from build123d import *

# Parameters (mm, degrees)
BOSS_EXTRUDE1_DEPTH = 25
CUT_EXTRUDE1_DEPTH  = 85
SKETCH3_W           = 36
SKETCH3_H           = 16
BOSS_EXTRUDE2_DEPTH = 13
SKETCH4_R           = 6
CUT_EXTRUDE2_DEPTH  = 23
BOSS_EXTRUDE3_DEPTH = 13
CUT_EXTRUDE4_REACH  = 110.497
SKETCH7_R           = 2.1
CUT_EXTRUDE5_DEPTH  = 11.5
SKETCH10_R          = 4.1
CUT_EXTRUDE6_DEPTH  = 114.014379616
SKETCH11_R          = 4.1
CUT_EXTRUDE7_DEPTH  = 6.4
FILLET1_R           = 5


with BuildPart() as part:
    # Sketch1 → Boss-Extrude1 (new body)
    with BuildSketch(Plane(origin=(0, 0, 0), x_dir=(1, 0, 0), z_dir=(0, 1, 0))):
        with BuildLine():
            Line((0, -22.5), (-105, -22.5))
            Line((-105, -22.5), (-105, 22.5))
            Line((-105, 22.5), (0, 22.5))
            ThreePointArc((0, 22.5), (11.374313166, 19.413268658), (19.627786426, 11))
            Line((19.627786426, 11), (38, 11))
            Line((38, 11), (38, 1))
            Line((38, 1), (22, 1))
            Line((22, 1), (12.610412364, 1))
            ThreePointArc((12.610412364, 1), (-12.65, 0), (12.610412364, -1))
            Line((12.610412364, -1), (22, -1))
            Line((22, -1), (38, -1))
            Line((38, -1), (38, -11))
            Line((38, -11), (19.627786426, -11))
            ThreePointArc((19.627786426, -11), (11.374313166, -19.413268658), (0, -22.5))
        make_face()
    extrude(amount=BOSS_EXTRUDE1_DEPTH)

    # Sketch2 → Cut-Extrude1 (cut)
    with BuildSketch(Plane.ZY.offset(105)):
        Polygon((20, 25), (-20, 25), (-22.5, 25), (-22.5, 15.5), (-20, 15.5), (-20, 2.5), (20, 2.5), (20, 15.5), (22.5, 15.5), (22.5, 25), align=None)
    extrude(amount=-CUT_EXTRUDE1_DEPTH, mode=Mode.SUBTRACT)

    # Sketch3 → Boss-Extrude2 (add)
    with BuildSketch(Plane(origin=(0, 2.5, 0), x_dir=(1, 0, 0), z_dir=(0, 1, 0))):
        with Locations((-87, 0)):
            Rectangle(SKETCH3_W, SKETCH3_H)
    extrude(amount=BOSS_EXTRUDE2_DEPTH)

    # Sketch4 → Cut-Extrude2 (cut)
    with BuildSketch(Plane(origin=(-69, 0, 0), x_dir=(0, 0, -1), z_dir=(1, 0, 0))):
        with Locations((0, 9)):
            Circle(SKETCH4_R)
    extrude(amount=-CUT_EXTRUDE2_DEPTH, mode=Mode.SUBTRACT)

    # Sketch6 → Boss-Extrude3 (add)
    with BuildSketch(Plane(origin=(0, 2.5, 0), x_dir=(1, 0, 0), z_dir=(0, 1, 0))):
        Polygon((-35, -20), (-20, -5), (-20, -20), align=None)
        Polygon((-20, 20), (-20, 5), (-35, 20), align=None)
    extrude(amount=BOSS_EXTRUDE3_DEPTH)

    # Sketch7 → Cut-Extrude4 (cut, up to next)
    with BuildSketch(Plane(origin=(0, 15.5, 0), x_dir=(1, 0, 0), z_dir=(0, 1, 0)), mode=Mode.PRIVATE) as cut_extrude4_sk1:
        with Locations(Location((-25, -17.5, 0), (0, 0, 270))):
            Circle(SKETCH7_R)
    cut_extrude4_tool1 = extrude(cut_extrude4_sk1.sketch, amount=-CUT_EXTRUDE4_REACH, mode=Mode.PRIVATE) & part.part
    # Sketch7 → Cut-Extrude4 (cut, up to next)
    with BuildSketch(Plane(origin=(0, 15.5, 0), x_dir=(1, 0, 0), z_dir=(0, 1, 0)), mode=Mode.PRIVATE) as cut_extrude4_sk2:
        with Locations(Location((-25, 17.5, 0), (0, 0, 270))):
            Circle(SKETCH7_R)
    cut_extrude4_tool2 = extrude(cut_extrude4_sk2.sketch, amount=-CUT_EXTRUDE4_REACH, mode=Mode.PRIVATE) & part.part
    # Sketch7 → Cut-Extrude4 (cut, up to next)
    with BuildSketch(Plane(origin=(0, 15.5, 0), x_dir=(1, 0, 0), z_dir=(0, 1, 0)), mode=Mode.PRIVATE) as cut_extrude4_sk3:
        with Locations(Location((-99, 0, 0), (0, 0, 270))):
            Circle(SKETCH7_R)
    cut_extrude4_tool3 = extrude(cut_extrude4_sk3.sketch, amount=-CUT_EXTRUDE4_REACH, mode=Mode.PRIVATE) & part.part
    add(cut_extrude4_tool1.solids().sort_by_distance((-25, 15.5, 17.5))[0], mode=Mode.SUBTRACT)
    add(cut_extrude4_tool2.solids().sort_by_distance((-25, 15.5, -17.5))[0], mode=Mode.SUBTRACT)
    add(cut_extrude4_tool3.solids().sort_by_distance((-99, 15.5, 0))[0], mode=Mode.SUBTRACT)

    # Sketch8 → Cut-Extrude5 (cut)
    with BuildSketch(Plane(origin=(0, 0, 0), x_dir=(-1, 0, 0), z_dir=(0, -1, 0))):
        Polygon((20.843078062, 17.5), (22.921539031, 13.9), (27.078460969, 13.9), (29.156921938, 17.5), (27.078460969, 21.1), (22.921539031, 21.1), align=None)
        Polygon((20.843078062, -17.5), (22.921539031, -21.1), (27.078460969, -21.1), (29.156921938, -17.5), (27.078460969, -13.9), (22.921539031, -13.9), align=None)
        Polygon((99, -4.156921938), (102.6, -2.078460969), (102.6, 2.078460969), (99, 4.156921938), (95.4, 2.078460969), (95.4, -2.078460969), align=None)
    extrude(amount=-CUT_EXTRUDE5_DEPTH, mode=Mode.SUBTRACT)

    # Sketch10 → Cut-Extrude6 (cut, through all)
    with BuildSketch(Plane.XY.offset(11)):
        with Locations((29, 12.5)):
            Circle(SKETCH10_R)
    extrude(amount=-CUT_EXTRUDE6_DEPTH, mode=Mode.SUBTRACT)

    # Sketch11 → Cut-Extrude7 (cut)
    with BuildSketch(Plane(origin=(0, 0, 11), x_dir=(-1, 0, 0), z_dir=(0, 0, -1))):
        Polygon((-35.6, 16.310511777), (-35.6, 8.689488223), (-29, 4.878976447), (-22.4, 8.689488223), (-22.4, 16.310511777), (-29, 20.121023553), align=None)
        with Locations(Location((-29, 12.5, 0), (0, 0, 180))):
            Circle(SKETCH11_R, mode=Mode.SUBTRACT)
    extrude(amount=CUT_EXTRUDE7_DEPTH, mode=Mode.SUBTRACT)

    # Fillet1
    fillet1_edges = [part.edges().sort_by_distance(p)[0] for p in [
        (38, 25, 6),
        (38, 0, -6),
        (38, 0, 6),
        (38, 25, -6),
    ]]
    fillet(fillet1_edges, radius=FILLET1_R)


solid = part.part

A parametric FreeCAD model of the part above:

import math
import FreeCAD as App
import Part
import Sketcher
from FreeCAD import Vector
Q = App.Units.Quantity


def edges_at(feature, points):
    """Names of the edges that pass closest to the given points."""
    edges = feature.Shape.Edges
    near = lambda p: min(range(len(edges)), key=lambda i: edges[i].distToShape(Part.Vertex(*p))[0])
    return sorted({f"Edge{near(p) + 1}" for p in points})

doc = App.newDocument("Part")
body = doc.addObject("PartDesign::Body", "Body")

# Sketch on XZ plane
sketch1 = body.newObject("Sketcher::SketchObject", "Sketch")
sketch1.AttachmentSupport = (doc.getObject("XZ_Plane"), [""])
sketch1.MapMode = "FlatFace"
sketch1.addGeometry([
    Part.LineSegment(Vector(-105, 22.5, 0), Vector(0, 22.5, 0)),  # 0
    Part.ArcOfCircle(Part.Circle(Vector(0, 0, 0), Vector(0, 0, 1), 22.5), math.radians(29.267578), math.radians(90)),  # 1
    Part.LineSegment(Vector(19.627786, 11, 0), Vector(38, 11, 0)),  # 2
    Part.LineSegment(Vector(38, 11, 0), Vector(38, 1, 0)),  # 3
    Part.LineSegment(Vector(38, 1, 0), Vector(12.610412, 1, 0)),  # 4
    Part.ArcOfCircle(Part.Circle(Vector(0, 0, 0), Vector(0, 0, 1), 12.65), math.radians(4.534041), math.radians(355.465959)),  # 5
    Part.LineSegment(Vector(12.610412, -1, 0), Vector(38, -1, 0)),  # 6
    Part.LineSegment(Vector(38, -1, 0), Vector(38, -11, 0)),  # 7
    Part.LineSegment(Vector(38, -11, 0), Vector(19.627786, -11, 0)),  # 8
    Part.ArcOfCircle(Part.Circle(Vector(0, 0, 0), Vector(0, 0, 1), 22.5), math.radians(-90), math.radians(-29.267578)),  # 9
    Part.LineSegment(Vector(0, -22.5, 0), Vector(-105, -22.5, 0)),  # 10
    Part.LineSegment(Vector(-105, -22.5, 0), Vector(-105, 22.5, 0)),  # 11
], False)
sketch1.addConstraint([
    Sketcher.Constraint("Tangent", 0, 2, 1, 2),
    Sketcher.Constraint("Coincident", 1, 1, 2, 1),
    Sketcher.Constraint("Coincident", 2, 2, 3, 1),
    Sketcher.Constraint("Coincident", 3, 2, 4, 1),
    Sketcher.Constraint("Coincident", 4, 2, 5, 1),
    Sketcher.Constraint("Coincident", 5, 2, 6, 1),
    Sketcher.Constraint("Coincident", 6, 2, 7, 1),
    Sketcher.Constraint("Coincident", 7, 2, 8, 1),
    Sketcher.Constraint("Coincident", 8, 2, 9, 2),
    Sketcher.Constraint("Tangent", 9, 1, 10, 1),
    Sketcher.Constraint("Coincident", 10, 2, 11, 1),
    Sketcher.Constraint("Coincident", 11, 2, 0, 1),
    Sketcher.Constraint("Horizontal", 0),
    Sketcher.Constraint("Horizontal", 2),
    Sketcher.Constraint("Vertical", 3),
    Sketcher.Constraint("Horizontal", 4),
    Sketcher.Constraint("Horizontal", 6),
    Sketcher.Constraint("Vertical", 7),
    Sketcher.Constraint("Horizontal", 8),
    Sketcher.Constraint("Horizontal", 10),
    Sketcher.Constraint("Vertical", 11),
    Sketcher.Constraint("Coincident", 1, 3, -1, 1),
    Sketcher.Constraint("Coincident", 5, 3, -1, 1),
    Sketcher.Constraint("Coincident", 9, 3, -1, 1),
    Sketcher.Constraint("Equal", 1, 9),
    Sketcher.Constraint("Symmetric", 3, 2, 6, 2, -1),
    Sketcher.Constraint("Vertical", 1, 1, 8, 2),
    Sketcher.Constraint("Radius", 1, 22.5),
    Sketcher.Constraint("DistanceX", 0, 1, 0, 2, 105.0),
    Sketcher.Constraint("DistanceY", 3, 2, 3, 1, 10.0),
    Sketcher.Constraint("Radius", 5, 12.65),
    Sketcher.Constraint("DistanceY", -1, 1, 1, 1, 11.0),
    Sketcher.Constraint("DistanceX", -1, 1, 2, 2, 38.0),
])
pad1 = body.newObject("PartDesign::Pad", "Pad")
pad1.Profile = sketch1
pad1.Length = 25
pad1.Reversed = True

# Sketch on YZ plane
sketch2 = body.newObject("Sketcher::SketchObject", "Sketch001")
sketch2.AttachmentSupport = (doc.getObject("YZ_Plane"), [""])
sketch2.MapMode = "FlatFace"
sketch2.AttachmentOffset = App.Placement(Vector(0, 0, -105), App.Rotation())
sketch2.addGeometry([
    Part.LineSegment(Vector(25, -22.5, 0), Vector(15.5, -22.5, 0)),  # 0
    Part.LineSegment(Vector(15.5, -22.5, 0), Vector(15.5, -20, 0)),  # 1
    Part.LineSegment(Vector(15.5, -20, 0), Vector(2.5, -20, 0)),  # 2
    Part.LineSegment(Vector(2.5, -20, 0), Vector(2.5, 20, 0)),  # 3
    Part.LineSegment(Vector(2.5, 20, 0), Vector(15.5, 20, 0)),  # 4
    Part.LineSegment(Vector(15.5, 20, 0), Vector(15.5, 22.5, 0)),  # 5
    Part.LineSegment(Vector(15.5, 22.5, 0), Vector(25, 22.5, 0)),  # 6
    Part.LineSegment(Vector(25, 22.5, 0), Vector(25, -22.5, 0)),  # 7
], False)
sketch2.addConstraint([
    Sketcher.Constraint("Coincident", 0, 2, 1, 1),
    Sketcher.Constraint("Coincident", 1, 2, 2, 1),
    Sketcher.Constraint("Coincident", 2, 2, 3, 1),
    Sketcher.Constraint("Coincident", 3, 2, 4, 1),
    Sketcher.Constraint("Coincident", 4, 2, 5, 1),
    Sketcher.Constraint("Coincident", 5, 2, 6, 1),
    Sketcher.Constraint("Coincident", 6, 2, 7, 1),
    Sketcher.Constraint("Coincident", 7, 2, 0, 1),
    Sketcher.Constraint("Horizontal", 0),
    Sketcher.Constraint("Vertical", 1),
    Sketcher.Constraint("Horizontal", 2),
    Sketcher.Constraint("Vertical", 3),
    Sketcher.Constraint("Horizontal", 4),
    Sketcher.Constraint("Vertical", 5),
    Sketcher.Constraint("Horizontal", 6),
    Sketcher.Constraint("Vertical", 7),
    Sketcher.Constraint("Symmetric", 1, 2, 4, 2, -1),
    Sketcher.Constraint("Equal", 1, 5),
    Sketcher.Constraint("DistanceX", 2, 2, 2, 1, 13.0),
    Sketcher.Constraint("DistanceY", 3, 1, 3, 2, 40.0),
    Sketcher.Constraint("DistanceY", 7, 2, 7, 1, 45.0),
    Sketcher.Constraint("DistanceX", 0, 2, 0, 1, 9.5),
    Sketcher.Constraint("DistanceX", -1, 1, 6, 2, 25.0),
])
pocket1 = body.newObject("PartDesign::Pocket", "Pocket")
pocket1.Profile = sketch2
pocket1.Length = 85
pocket1.Reversed = True

# Sketch on XZ plane
sketch3 = body.newObject("Sketcher::SketchObject", "Sketch002")
sketch3.AttachmentSupport = (doc.getObject("XZ_Plane"), [""])
sketch3.MapMode = "FlatFace"
sketch3.AttachmentOffset = App.Placement(Vector(0, 0, -2.5), App.Rotation())
sketch3.addGeometry([
    Part.LineSegment(Vector(-105, -8, 0), Vector(-105, 8, 0)),
    Part.LineSegment(Vector(-105, 8, 0), Vector(-69, 8, 0)),
    Part.LineSegment(Vector(-69, 8, 0), Vector(-69, -8, 0)),
    Part.LineSegment(Vector(-69, -8, 0), Vector(-105, -8, 0)),
], False)
sketch3.addConstraint([
    Sketcher.Constraint("Coincident", 0, 2, 1, 1),
    Sketcher.Constraint("Coincident", 1, 2, 2, 1),
    Sketcher.Constraint("Coincident", 2, 2, 3, 1),
    Sketcher.Constraint("Coincident", 3, 2, 0, 1),
    Sketcher.Constraint("Vertical", 0),
    Sketcher.Constraint("Horizontal", 1),
    Sketcher.Constraint("Vertical", 2),
    Sketcher.Constraint("Horizontal", 3),
    Sketcher.Constraint("DistanceX", 1, 1, 1, 2, 36.0),
    Sketcher.Constraint("DistanceY", 0, 1, 0, 2, 16.0),
    Sketcher.Constraint("DistanceX", 0, 2, -1, 1, 105.0),
    Sketcher.Constraint("DistanceY", -1, 1, 0, 2, 8.0),
])
pad2 = body.newObject("PartDesign::Pad", "Pad001")
pad2.Profile = sketch3
pad2.Length = 13
pad2.Reversed = True

# Sketch on YZ plane
sketch4 = body.newObject("Sketcher::SketchObject", "Sketch003")
sketch4.AttachmentSupport = (doc.getObject("YZ_Plane"), [""])
sketch4.MapMode = "FlatFace"
sketch4.AttachmentOffset = App.Placement(Vector(0, 0, -69), App.Rotation())
sketch4.addGeometry(Part.Circle(Vector(9, 0, 0), Vector(0, 0, 1), 6), False)
sketch4.addConstraint([
    Sketcher.Constraint("PointOnObject", 0, 3, -1),
    Sketcher.Constraint("Diameter", 0, 12.0),
    Sketcher.Constraint("DistanceX", -1, 1, 0, 3, 9.0),
])
pocket2 = body.newObject("PartDesign::Pocket", "Pocket001")
pocket2.Profile = sketch4
pocket2.Length = 23

# Sketch on XZ plane
sketch5 = body.newObject("Sketcher::SketchObject", "Sketch004")
sketch5.AttachmentSupport = (doc.getObject("XZ_Plane"), [""])
sketch5.MapMode = "FlatFace"
sketch5.AttachmentOffset = App.Placement(Vector(0, 0, -2.5), App.Rotation())
sketch5.addGeometry([
    Part.LineSegment(Vector(-20, 5, 0), Vector(-35, 20, 0)),  # 0
    Part.LineSegment(Vector(-35, 20, 0), Vector(-20, 20, 0)),  # 1
    Part.LineSegment(Vector(-20, 20, 0), Vector(-20, 5, 0)),  # 2
    Part.LineSegment(Vector(-20, -5, 0), Vector(-20, -20, 0)),  # 3
    Part.LineSegment(Vector(-20, -20, 0), Vector(-35, -20, 0)),  # 4
    Part.LineSegment(Vector(-35, -20, 0), Vector(-20, -5, 0)),  # 5
], False)
sketch5.addConstraint([
    Sketcher.Constraint("Coincident", 0, 2, 1, 1),
    Sketcher.Constraint("Coincident", 1, 2, 2, 1),
    Sketcher.Constraint("Coincident", 2, 2, 0, 1),
    Sketcher.Constraint("Coincident", 3, 2, 4, 1),
    Sketcher.Constraint("Coincident", 4, 2, 5, 1),
    Sketcher.Constraint("Coincident", 5, 2, 3, 1),
    Sketcher.Constraint("Horizontal", 1),
    Sketcher.Constraint("Vertical", 2),
    Sketcher.Constraint("Vertical", 3),
    Sketcher.Constraint("Horizontal", 4),
    Sketcher.Constraint("Symmetric", 1, 2, 3, 2, -1),
    Sketcher.Constraint("Perpendicular", 0, 5),
    Sketcher.Constraint("Vertical", 0, 2, 4, 2),
    Sketcher.Constraint("Equal", 4, 2),
    Sketcher.Constraint("DistanceX", 1, 1, 1, 2, 15.0),
    Sketcher.Constraint("DistanceX", 0, 2, -1, 1, 35.0),
    Sketcher.Constraint("DistanceY", -1, 1, 0, 2, 20.0),
])
pad3 = body.newObject("PartDesign::Pad", "Pad002")
pad3.Profile = sketch5
pad3.Length = 13
pad3.Reversed = True

# Sketch on XZ plane
sketch6 = body.newObject("Sketcher::SketchObject", "Sketch005")
sketch6.AttachmentSupport = (doc.getObject("XZ_Plane"), [""])
sketch6.MapMode = "FlatFace"
sketch6.AttachmentOffset = App.Placement(Vector(0, 0, -15.5), App.Rotation())
sketch6.addGeometry(Part.Circle(Vector(-25, 17.5, 0), Vector(0, 0, 1), 2.1), False)
sketch6.addConstraint([
    Sketcher.Constraint("Diameter", 0, 4.2),
    Sketcher.Constraint("DistanceX", 0, 3, -1, 1, 25.0),
    Sketcher.Constraint("DistanceY", -1, 1, 0, 3, 17.5),
])
pocket3 = body.newObject("PartDesign::Pocket", "Pocket002")
pocket3.Profile = sketch6
pocket3.Type = "UpToFirst"
pocket3.Reversed = True

# Sketch on XZ plane
sketch7 = body.newObject("Sketcher::SketchObject", "Sketch006")
sketch7.AttachmentSupport = (doc.getObject("XZ_Plane"), [""])
sketch7.MapMode = "FlatFace"
sketch7.AttachmentOffset = App.Placement(Vector(0, 0, -15.5), App.Rotation())
sketch7.addGeometry(Part.Circle(Vector(-25, -17.5, 0), Vector(0, 0, 1), 2.1), False)
sketch7.addConstraint([
    Sketcher.Constraint("Diameter", 0, 4.2),
    Sketcher.Constraint("DistanceX", 0, 3, -1, 1, 25.0),
    Sketcher.Constraint("DistanceY", 0, 3, -1, 1, 17.5),
])
pocket4 = body.newObject("PartDesign::Pocket", "Pocket003")
pocket4.Profile = sketch7
pocket4.Type = "UpToFirst"
pocket4.Reversed = True

# Sketch on XZ plane
sketch8 = body.newObject("Sketcher::SketchObject", "Sketch007")
sketch8.AttachmentSupport = (doc.getObject("XZ_Plane"), [""])
sketch8.MapMode = "FlatFace"
sketch8.AttachmentOffset = App.Placement(Vector(0, 0, -15.5), App.Rotation())
sketch8.addGeometry(Part.Circle(Vector(-99, 0, 0), Vector(0, 0, 1), 2.1), False)
sketch8.addConstraint([
    Sketcher.Constraint("PointOnObject", 0, 3, -1),
    Sketcher.Constraint("Diameter", 0, 4.2),
    Sketcher.Constraint("DistanceX", 0, 3, -1, 1, 99.0),
])
pocket5 = body.newObject("PartDesign::Pocket", "Pocket004")
pocket5.Profile = sketch8
pocket5.Type = "UpToFirst"
pocket5.Reversed = True

# Sketch on XZ plane
sketch9 = body.newObject("Sketcher::SketchObject", "Sketch008")
sketch9.AttachmentSupport = (doc.getObject("XZ_Plane"), [""])
sketch9.MapMode = "FlatFace"
sketch9.addGeometry([
    Part.LineSegment(Vector(-20.843078, -17.5, 0), Vector(-22.921539, -13.9, 0)),  # 0
    Part.LineSegment(Vector(-22.921539, -13.9, 0), Vector(-27.078461, -13.9, 0)),  # 1
    Part.LineSegment(Vector(-27.078461, -13.9, 0), Vector(-29.156922, -17.5, 0)),  # 2
    Part.LineSegment(Vector(-29.156922, -17.5, 0), Vector(-27.078461, -21.1, 0)),  # 3
    Part.LineSegment(Vector(-27.078461, -21.1, 0), Vector(-22.921539, -21.1, 0)),  # 4
    Part.LineSegment(Vector(-22.921539, -21.1, 0), Vector(-20.843078, -17.5, 0)),  # 5
    Part.LineSegment(Vector(-20.843078, 17.5, 0), Vector(-22.921539, 21.1, 0)),  # 6
    Part.LineSegment(Vector(-22.921539, 21.1, 0), Vector(-27.078461, 21.1, 0)),  # 7
    Part.LineSegment(Vector(-27.078461, 21.1, 0), Vector(-29.156922, 17.5, 0)),  # 8
    Part.LineSegment(Vector(-29.156922, 17.5, 0), Vector(-27.078461, 13.9, 0)),  # 9
    Part.LineSegment(Vector(-27.078461, 13.9, 0), Vector(-22.921539, 13.9, 0)),  # 10
    Part.LineSegment(Vector(-22.921539, 13.9, 0), Vector(-20.843078, 17.5, 0)),  # 11
    Part.LineSegment(Vector(-99, 4.156922, 0), Vector(-102.6, 2.078461, 0)),  # 12
    Part.LineSegment(Vector(-102.6, 2.078461, 0), Vector(-102.6, -2.078461, 0)),  # 13
    Part.LineSegment(Vector(-102.6, -2.078461, 0), Vector(-99, -4.156922, 0)),  # 14
    Part.LineSegment(Vector(-99, -4.156922, 0), Vector(-95.4, -2.078461, 0)),  # 15
    Part.LineSegment(Vector(-95.4, -2.078461, 0), Vector(-95.4, 2.078461, 0)),  # 16
    Part.LineSegment(Vector(-95.4, 2.078461, 0), Vector(-99, 4.156922, 0)),  # 17
], False)
sketch9.addConstraint([
    Sketcher.Constraint("Coincident", 0, 2, 1, 1),
    Sketcher.Constraint("Coincident", 1, 2, 2, 1),
    Sketcher.Constraint("Coincident", 2, 2, 3, 1),
    Sketcher.Constraint("Coincident", 3, 2, 4, 1),
    Sketcher.Constraint("Coincident", 4, 2, 5, 1),
    Sketcher.Constraint("Coincident", 5, 2, 0, 1),
    Sketcher.Constraint("Coincident", 6, 2, 7, 1),
    Sketcher.Constraint("Coincident", 7, 2, 8, 1),
    Sketcher.Constraint("Coincident", 8, 2, 9, 1),
    Sketcher.Constraint("Coincident", 9, 2, 10, 1),
    Sketcher.Constraint("Coincident", 10, 2, 11, 1),
    Sketcher.Constraint("Coincident", 11, 2, 6, 1),
    Sketcher.Constraint("Coincident", 12, 2, 13, 1),
    Sketcher.Constraint("Coincident", 13, 2, 14, 1),
    Sketcher.Constraint("Coincident", 14, 2, 15, 1),
    Sketcher.Constraint("Coincident", 15, 2, 16, 1),
    Sketcher.Constraint("Coincident", 16, 2, 17, 1),
    Sketcher.Constraint("Coincident", 17, 2, 12, 1),
    Sketcher.Constraint("Horizontal", 1),
    Sketcher.Constraint("Horizontal", 4),
    Sketcher.Constraint("Horizontal", 7),
    Sketcher.Constraint("Horizontal", 10),
    Sketcher.Constraint("Vertical", 13),
    Sketcher.Constraint("Vertical", 16),
    Sketcher.Constraint("Symmetric", 4, 2, 6, 2, -1),
    Sketcher.Constraint("Symmetric", 2, 2, 8, 2, -1),
    Sketcher.Constraint("Symmetric", 1, 2, 9, 2, -1),
    Sketcher.Constraint("Symmetric", 5, 2, 11, 2, -1),
    Sketcher.Constraint("Symmetric", 14, 2, 17, 2, -1),
    Sketcher.Constraint("Parallel", 0, 3),
    Sketcher.Constraint("Parallel", 2, 5),
    Sketcher.Constraint("Parallel", 3, 6),
    Sketcher.Constraint("Parallel", 5, 8),
    Sketcher.Constraint("Parallel", 8, 11),
    Sketcher.Constraint("Perpendicular", 9, 12),
    Sketcher.Constraint("Perpendicular", 11, 14),
    Sketcher.Constraint("Parallel", 12, 15),
    Sketcher.Constraint("Parallel", 14, 17),
    Sketcher.Constraint("Horizontal", 2, 2, 5, 2),
    Sketcher.Constraint("Horizontal", 13, 2, 15, 2),
    Sketcher.Constraint("Vertical", 1, 2, 3, 2),
    Sketcher.Constraint("Equal", 10, 13),
    Sketcher.Constraint("Equal", 11, 12),
    Sketcher.Constraint("Angle", 0, Q("120 deg")),
    Sketcher.Constraint("DistanceX", 14, 2, -1, 1, 99.0),
    Sketcher.Constraint("DistanceY", 0, 2, 6, 2, 35.0),
    Sketcher.Constraint("DistanceY", 0, 2, -1, 1, 13.9),
    Sketcher.Constraint("DistanceX", 1, 2, 1, 1, 4.156922),
    Sketcher.Constraint("DistanceX", 0, 2, -1, 1, 22.921539),
])
pocket6 = body.newObject("PartDesign::Pocket", "Pocket005")
pocket6.Profile = sketch9
pocket6.Length = 11.5

# Sketch on XY plane
sketch10 = body.newObject("Sketcher::SketchObject", "Sketch009")
sketch10.AttachmentSupport = (doc.getObject("XY_Plane"), [""])
sketch10.MapMode = "FlatFace"
sketch10.AttachmentOffset = App.Placement(Vector(0, 0, 11), App.Rotation())
sketch10.addGeometry(Part.Circle(Vector(29, 12.5, 0), Vector(0, 0, 1), 4.1), False)
sketch10.addConstraint([
    Sketcher.Constraint("Diameter", 0, 8.2),
    Sketcher.Constraint("DistanceX", -1, 1, 0, 3, 29.0),
    Sketcher.Constraint("DistanceY", -1, 1, 0, 3, 12.5),
])
pocket7 = body.newObject("PartDesign::Pocket", "Pocket006")
pocket7.Profile = sketch10
pocket7.Type = "ThroughAll"

# Sketch on XY plane
sketch11 = body.newObject("Sketcher::SketchObject", "Sketch010")
sketch11.AttachmentSupport = (doc.getObject("XY_Plane"), [""])
sketch11.MapMode = "FlatFace"
sketch11.AttachmentOffset = App.Placement(Vector(0, 0, 11), App.Rotation())
sketch11.addGeometry([
    Part.LineSegment(Vector(35.6, 16.310512, 0), Vector(35.6, 8.689488, 0)),  # 0
    Part.LineSegment(Vector(35.6, 8.689488, 0), Vector(29, 4.878976, 0)),  # 1
    Part.LineSegment(Vector(29, 4.878976, 0), Vector(22.4, 8.689488, 0)),  # 2
    Part.LineSegment(Vector(22.4, 8.689488, 0), Vector(22.4, 16.310512, 0)),  # 3
    Part.LineSegment(Vector(22.4, 16.310512, 0), Vector(29, 20.121024, 0)),  # 4
    Part.LineSegment(Vector(29, 20.121024, 0), Vector(35.6, 16.310512, 0)),  # 5
    Part.Circle(Vector(29, 12.5, 0), Vector(0, 0, 1), 4.1),  # 6
], False)
sketch11.addConstraint([
    Sketcher.Constraint("Coincident", 0, 2, 1, 1),
    Sketcher.Constraint("Coincident", 1, 2, 2, 1),
    Sketcher.Constraint("Coincident", 2, 2, 3, 1),
    Sketcher.Constraint("Coincident", 3, 2, 4, 1),
    Sketcher.Constraint("Coincident", 4, 2, 5, 1),
    Sketcher.Constraint("Coincident", 5, 2, 0, 1),
    Sketcher.Constraint("Vertical", 0),
    Sketcher.Constraint("Vertical", 3),
    Sketcher.Constraint("Parallel", 1, 4),
    Sketcher.Constraint("Parallel", 2, 5),
    Sketcher.Constraint("Horizontal", 0, 2, 2, 2),
    Sketcher.Constraint("Horizontal", 3, 2, 5, 2),
    Sketcher.Constraint("Vertical", 6, 3, 1, 2),
    Sketcher.Constraint("Vertical", 1, 2, 4, 2),
    Sketcher.Constraint("Diameter", 6, 8.2),
    Sketcher.Constraint("Angle", 1, Q("-150 deg")),
    Sketcher.Constraint("DistanceX", -1, 1, 6, 3, 29.0),
    Sketcher.Constraint("DistanceY", -1, 1, 6, 3, 12.5),
    Sketcher.Constraint("DistanceX", -1, 1, 0, 2, 35.6),
    Sketcher.Constraint("DistanceY", 0, 2, 0, 1, 7.621024),
    Sketcher.Constraint("DistanceY", -1, 1, 0, 2, 8.689488),
])
pocket8 = body.newObject("PartDesign::Pocket", "Pocket007")
pocket8.Profile = sketch11
pocket8.Length = 6.4
doc.recompute()

fillet = body.newObject("PartDesign::Fillet", "Fillet")
fillet.Base = (pocket8, edges_at(pocket8, [
    (38, 25, 6),
    (38, 0, -6),
    (38, 0, 6),
    (38, 25, -6),
]))
fillet.Radius = 5

doc.recompute()
